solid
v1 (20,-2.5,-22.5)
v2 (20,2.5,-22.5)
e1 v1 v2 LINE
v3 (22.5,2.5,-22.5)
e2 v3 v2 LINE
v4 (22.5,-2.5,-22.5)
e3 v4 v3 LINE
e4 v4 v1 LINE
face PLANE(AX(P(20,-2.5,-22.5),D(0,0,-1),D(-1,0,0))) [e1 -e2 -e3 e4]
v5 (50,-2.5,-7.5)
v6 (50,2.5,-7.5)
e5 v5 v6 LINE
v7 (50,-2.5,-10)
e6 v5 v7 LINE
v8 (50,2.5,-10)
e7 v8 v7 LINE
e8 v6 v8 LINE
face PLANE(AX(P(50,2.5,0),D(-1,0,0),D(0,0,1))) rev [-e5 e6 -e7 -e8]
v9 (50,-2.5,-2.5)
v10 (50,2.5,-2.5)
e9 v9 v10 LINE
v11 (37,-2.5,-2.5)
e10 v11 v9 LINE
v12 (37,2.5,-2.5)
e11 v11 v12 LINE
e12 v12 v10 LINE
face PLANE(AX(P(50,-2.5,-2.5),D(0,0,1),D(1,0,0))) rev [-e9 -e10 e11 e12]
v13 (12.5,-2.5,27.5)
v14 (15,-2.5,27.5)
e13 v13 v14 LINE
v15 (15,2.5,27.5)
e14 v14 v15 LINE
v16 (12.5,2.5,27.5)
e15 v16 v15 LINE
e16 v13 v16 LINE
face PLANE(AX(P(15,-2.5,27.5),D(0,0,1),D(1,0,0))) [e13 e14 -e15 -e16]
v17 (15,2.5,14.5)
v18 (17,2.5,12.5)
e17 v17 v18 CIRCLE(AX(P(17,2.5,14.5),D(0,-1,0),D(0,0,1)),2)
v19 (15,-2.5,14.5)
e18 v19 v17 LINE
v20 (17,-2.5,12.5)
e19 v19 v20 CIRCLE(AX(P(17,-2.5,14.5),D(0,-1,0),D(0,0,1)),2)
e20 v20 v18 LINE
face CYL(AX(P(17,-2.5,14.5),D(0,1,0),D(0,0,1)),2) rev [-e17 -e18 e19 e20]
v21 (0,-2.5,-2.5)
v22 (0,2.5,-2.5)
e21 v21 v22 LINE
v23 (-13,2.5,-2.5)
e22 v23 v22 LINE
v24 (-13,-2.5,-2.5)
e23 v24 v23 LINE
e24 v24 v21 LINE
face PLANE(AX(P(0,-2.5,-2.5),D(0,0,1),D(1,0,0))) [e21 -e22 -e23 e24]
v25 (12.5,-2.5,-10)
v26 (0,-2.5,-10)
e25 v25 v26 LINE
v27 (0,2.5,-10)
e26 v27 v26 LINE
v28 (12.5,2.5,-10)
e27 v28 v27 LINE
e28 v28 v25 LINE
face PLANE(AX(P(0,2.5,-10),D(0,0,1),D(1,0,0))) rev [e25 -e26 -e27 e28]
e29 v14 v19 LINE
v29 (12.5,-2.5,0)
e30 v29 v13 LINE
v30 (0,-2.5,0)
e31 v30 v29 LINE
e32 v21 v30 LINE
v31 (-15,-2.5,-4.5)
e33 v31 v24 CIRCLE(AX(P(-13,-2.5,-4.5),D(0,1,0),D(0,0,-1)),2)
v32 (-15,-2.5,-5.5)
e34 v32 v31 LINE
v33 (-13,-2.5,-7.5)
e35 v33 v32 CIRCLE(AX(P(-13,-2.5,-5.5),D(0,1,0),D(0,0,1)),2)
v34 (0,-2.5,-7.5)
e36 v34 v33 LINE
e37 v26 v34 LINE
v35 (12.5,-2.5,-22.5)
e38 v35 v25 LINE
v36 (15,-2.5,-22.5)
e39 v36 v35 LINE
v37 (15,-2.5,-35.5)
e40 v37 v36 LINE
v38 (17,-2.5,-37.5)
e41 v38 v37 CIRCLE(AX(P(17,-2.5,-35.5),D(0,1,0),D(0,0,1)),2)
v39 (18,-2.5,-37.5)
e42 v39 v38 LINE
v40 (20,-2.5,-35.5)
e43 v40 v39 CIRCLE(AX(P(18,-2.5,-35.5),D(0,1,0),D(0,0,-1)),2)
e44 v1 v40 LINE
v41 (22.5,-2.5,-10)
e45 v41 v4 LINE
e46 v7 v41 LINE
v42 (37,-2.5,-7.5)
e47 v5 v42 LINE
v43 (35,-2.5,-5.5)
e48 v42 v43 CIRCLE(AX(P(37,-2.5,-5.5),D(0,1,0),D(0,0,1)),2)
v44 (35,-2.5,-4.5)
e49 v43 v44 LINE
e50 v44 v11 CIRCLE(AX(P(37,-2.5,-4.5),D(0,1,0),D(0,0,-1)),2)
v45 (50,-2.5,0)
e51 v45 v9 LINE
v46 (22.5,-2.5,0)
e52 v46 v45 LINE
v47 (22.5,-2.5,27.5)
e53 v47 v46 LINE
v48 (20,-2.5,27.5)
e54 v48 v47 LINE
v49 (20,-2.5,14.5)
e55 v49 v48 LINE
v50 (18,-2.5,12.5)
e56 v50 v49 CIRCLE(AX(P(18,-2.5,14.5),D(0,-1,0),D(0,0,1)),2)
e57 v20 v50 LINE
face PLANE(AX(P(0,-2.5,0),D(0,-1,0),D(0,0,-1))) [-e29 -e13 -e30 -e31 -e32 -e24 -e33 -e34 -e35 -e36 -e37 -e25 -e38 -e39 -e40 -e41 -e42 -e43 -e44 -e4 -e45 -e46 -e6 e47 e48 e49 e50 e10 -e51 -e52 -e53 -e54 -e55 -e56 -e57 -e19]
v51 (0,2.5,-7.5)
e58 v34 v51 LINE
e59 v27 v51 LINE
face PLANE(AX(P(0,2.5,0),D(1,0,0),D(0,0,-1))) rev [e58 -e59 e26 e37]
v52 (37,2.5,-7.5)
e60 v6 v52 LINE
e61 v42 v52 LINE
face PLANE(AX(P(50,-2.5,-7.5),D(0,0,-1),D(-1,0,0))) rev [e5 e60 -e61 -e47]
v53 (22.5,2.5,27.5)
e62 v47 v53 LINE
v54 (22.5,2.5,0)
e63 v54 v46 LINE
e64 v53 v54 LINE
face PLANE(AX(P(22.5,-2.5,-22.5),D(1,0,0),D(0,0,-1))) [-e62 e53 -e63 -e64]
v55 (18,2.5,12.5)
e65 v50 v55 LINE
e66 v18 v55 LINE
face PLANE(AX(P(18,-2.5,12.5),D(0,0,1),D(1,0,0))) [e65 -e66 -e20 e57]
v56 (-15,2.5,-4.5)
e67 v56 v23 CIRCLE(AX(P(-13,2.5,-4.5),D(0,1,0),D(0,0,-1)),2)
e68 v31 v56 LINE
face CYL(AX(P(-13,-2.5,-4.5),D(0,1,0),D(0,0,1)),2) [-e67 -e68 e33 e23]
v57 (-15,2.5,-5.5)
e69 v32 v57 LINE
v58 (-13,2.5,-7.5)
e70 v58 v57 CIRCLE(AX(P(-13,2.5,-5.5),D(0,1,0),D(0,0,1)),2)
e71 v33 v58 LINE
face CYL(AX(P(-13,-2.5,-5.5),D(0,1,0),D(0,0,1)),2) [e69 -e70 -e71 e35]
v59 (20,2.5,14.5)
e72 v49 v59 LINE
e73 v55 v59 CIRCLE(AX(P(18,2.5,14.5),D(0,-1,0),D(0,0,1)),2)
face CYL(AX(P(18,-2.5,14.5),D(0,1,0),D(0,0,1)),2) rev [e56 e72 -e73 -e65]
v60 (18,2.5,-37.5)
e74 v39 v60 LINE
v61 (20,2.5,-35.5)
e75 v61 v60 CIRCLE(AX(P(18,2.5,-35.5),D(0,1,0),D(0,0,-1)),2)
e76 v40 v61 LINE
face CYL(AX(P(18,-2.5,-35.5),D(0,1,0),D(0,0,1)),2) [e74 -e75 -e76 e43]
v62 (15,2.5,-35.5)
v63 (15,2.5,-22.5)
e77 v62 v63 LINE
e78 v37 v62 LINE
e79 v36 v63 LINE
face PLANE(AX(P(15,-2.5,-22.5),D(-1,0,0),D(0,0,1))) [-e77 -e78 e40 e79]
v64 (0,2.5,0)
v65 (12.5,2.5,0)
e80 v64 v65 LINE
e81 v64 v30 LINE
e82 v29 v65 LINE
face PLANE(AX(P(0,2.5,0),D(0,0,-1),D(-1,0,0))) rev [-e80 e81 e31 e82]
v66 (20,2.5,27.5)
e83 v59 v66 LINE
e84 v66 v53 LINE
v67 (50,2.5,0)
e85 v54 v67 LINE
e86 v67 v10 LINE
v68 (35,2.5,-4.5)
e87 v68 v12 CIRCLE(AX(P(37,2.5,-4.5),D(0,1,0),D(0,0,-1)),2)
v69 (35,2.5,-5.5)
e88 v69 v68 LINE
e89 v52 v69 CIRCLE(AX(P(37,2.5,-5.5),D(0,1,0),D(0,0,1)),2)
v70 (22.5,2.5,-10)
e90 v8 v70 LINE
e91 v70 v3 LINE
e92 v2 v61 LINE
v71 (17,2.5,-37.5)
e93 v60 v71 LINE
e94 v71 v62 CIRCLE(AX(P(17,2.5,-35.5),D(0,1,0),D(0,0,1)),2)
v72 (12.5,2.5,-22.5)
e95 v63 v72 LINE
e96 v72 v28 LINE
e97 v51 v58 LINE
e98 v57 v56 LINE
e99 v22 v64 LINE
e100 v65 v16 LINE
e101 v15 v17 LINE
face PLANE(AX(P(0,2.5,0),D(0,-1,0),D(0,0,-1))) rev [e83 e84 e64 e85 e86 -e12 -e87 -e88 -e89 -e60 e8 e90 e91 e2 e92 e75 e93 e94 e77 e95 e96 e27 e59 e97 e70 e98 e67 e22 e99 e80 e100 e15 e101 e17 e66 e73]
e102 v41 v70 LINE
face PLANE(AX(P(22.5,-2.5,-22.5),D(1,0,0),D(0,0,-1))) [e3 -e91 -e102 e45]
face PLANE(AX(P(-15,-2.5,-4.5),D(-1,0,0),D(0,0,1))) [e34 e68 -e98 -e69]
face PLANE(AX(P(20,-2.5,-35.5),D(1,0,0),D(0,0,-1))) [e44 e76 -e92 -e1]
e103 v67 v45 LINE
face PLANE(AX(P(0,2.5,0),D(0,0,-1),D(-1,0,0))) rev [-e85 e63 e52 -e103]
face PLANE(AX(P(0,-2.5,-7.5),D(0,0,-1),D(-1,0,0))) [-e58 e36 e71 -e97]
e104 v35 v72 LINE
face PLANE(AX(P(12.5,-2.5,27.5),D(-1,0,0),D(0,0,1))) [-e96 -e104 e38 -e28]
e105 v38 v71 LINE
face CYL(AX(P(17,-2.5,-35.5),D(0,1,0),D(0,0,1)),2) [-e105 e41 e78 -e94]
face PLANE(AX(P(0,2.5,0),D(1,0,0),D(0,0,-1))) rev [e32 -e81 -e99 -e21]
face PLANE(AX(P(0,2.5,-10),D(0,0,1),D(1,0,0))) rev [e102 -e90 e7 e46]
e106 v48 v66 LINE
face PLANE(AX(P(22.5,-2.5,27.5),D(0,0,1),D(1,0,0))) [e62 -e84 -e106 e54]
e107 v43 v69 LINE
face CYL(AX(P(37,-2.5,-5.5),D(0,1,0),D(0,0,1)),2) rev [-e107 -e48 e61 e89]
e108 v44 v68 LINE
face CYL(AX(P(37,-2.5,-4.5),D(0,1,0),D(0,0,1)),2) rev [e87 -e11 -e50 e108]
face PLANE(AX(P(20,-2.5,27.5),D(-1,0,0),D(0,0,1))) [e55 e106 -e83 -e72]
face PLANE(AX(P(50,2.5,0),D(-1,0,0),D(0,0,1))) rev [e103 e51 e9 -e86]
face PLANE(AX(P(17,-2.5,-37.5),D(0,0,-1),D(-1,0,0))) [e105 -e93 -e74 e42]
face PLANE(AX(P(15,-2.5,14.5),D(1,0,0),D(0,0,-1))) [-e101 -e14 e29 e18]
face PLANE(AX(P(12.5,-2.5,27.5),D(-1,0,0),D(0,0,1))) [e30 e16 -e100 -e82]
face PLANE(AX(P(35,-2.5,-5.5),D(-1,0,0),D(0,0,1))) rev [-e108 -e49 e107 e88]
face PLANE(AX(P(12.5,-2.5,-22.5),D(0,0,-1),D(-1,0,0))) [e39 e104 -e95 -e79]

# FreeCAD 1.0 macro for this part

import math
import FreeCAD as App
import Part
import Sketcher
from FreeCAD import Vector
Q = App.Units.Quantity


def add_polygon(sketch, points):
    """Adds a closed chain of lines whose ends are joined by coincident constraints."""
    first, n = sketch.GeometryCount, len(points)
    for a, b in zip(points, points[1:] + points[:1]):
        sketch.addGeometry(Part.LineSegment(App.Vector(*a, 0), App.Vector(*b, 0)), False)
    for i in range(n):
        sketch.addConstraint(Sketcher.Constraint("Coincident", first + i, 2, first + (i + 1) % n, 1))

doc = App.newDocument("Part")
params = doc.addObject("Spreadsheet::Sheet", "Params")
for row, (alias, value) in enumerate([
    ("sketch1_width", "50 mm"),
    ("sketch1_height", "10 mm"),
    ("pad1_length", "5 mm"),
    ("sketch2_radius", "2 mm"),
    ("sketch2_width", "13 mm"),
    ("sketch2_height", "1 mm"),
    ("sketch3_radius", "2 mm"),
    ("sketch3_width", "13 mm"),
    ("sketch3_height", "5 mm"),
    ("pad2_length", "5 mm"),
    ("sketch4_radius", "2 mm"),
    ("sketch4_width", "1 mm"),
    ("sketch4_height", "13 mm"),
    ("sketch4_height2", "50 mm"),
    ("sketch4_width2", "2.5 mm"),
    ("pad3_length", "5 mm"),
], start=1):
    params.set(f"A{row}", alias)
    params.set(f"B{row}", "=" + value)
    params.setAlias(f"B{row}", alias)

body = doc.addObject("PartDesign::Body", "Body")

# Sketch on XZ plane
sketch1 = body.newObject("Sketcher::SketchObject", "Sketch")
sketch1.AttachmentSupport = (doc.getObject("XZ_Plane"), [""])
sketch1.MapMode = "FlatFace"
add_polygon(sketch1, [(0, -10), (0, 0), (50, 0), (50, -10)])  # lines 0-3
sketch1.addConstraint([
    Sketcher.Constraint("Vertical", 0),
    Sketcher.Constraint("Horizontal", 1),
    Sketcher.Constraint("Vertical", 2),
    Sketcher.Constraint("Horizontal", 3),
    Sketcher.Constraint("Coincident", 0, 2, -1, 1),
    Sketcher.Constraint("DistanceX", 1, 1, 1, 2, Q("50 mm")),
    Sketcher.Constraint("DistanceY", 0, 1, 0, 2, Q("10 mm")),
])
sketch1.setExpression("Constraints[9]", "Params.sketch1_width")
sketch1.setExpression("Constraints[10]", "Params.sketch1_height")
pad1 = body.newObject("PartDesign::Pad", "Pad")
pad1.Profile = sketch1
pad1.setExpression("Length", "Params.pad1_length")
pad1.Midplane = True

# Sketch on XZ plane
sketch2 = body.newObject("Sketcher::SketchObject", "Sketch001")
sketch2.AttachmentSupport = (doc.getObject("XZ_Plane"), [""])
sketch2.MapMode = "FlatFace"
sketch2.AttachmentOffset = App.Placement(Vector(0, 0, -2.5), App.Rotation())
sketch2.addGeometry([
    Part.LineSegment(Vector(50, -7.5, 0), Vector(37, -7.5, 0)),  # 0
    Part.ArcOfCircle(Part.Circle(Vector(37, -5.5, 0), Vector(0, 0, 1), 2), math.radians(-180), math.radians(-90)),  # 1
    Part.LineSegment(Vector(35, -5.5, 0), Vector(35, -4.5, 0)),  # 2
    Part.ArcOfCircle(Part.Circle(Vector(37, -4.5, 0), Vector(0, 0, 1), 2), math.radians(90), math.radians(180)),  # 3
    Part.LineSegment(Vector(37, -2.5, 0), Vector(50, -2.5, 0)),  # 4
    Part.LineSegment(Vector(50, -2.5, 0), Vector(50, -7.5, 0)),  # 5
], False)
sketch2.addConstraint([
    Sketcher.Constraint("Tangent", 0, 2, 1, 2),
    Sketcher.Constraint("Tangent", 1, 1, 2, 1),
    Sketcher.Constraint("Tangent", 2, 2, 3, 2),
    Sketcher.Constraint("Tangent", 3, 1, 4, 1),
    Sketcher.Constraint("Coincident", 4, 2, 5, 1),
    Sketcher.Constraint("Coincident", 5, 2, 0, 1),
    Sketcher.Constraint("Horizontal", 0),
    Sketcher.Constraint("Vertical", 2),
    Sketcher.Constraint("Horizontal", 4),
    Sketcher.Constraint("Vertical", 5),
    Sketcher.Constraint("Equal", 1, 3),
    Sketcher.Constraint("Radius", 1, Q("2 mm")),
    Sketcher.Constraint("DistanceX", 0, 2, 0, 1, Q("13 mm")),
    Sketcher.Constraint("DistanceY", 2, 1, 2, 2, Q("1 mm")),
    Sketcher.Constraint("DistanceX", -1, 1, 1, 3, Q("37 mm")),
    Sketcher.Constraint("DistanceY", 1, 3, -1, 1, Q("5.5 mm")),
])
sketch2.setExpression("Constraints[11]", "Params.sketch2_radius")
sketch2.setExpression("Constraints[12]", "Params.sketch2_width")
sketch2.setExpression("Constraints[13]", "Params.sketch2_height")
pocket1 = body.newObject("PartDesign::Pocket", "Pocket")
pocket1.Profile = sketch2
pocket1.Type = "ThroughAll"
pocket1.Reversed = True

# Sketch on XZ plane
sketch3 = body.newObject("Sketcher::SketchObject", "Sketch002")
sketch3.AttachmentSupport = (doc.getObject("XZ_Plane"), [""])
sketch3.MapMode = "FlatFace"
sketch3.AttachmentOffset = App.Placement(Vector(0, 0, -2.5), App.Rotation())
sketch3.addGeometry([
    Part.LineSegment(Vector(-13, -2.5, 0), Vector(0, -2.5, 0)),  # 0
    Part.LineSegment(Vector(0, -2.5, 0), Vector(0, -7.5, 0)),  # 1
    Part.LineSegment(Vector(0, -7.5, 0), Vector(-13, -7.5, 0)),  # 2
    Part.ArcOfCircle(Part.Circle(Vector(-13, -5.5, 0), Vector(0, 0, 1), 2), math.radians(-180), math.radians(-90)),  # 3
    Part.LineSegment(Vector(-15, -5.5, 0), Vector(-15, -4.5, 0)),  # 4
    Part.ArcOfCircle(Part.Circle(Vector(-13, -4.5, 0), Vector(0, 0, 1), 2), math.radians(90), math.radians(180)),  # 5
], False)
sketch3.addConstraint([
    Sketcher.Constraint("Coincident", 0, 2, 1, 1),
    Sketcher.Constraint("Coincident", 1, 2, 2, 1),
    Sketcher.Constraint("Tangent", 2, 2, 3, 2),
    Sketcher.Constraint("Tangent", 3, 1, 4, 1),
    Sketcher.Constraint("Tangent", 4, 2, 5, 2),
    Sketcher.Constraint("Tangent", 5, 1, 0, 1),
    Sketcher.Constraint("Horizontal", 0),
    Sketcher.Constraint("Vertical", 1),
    Sketcher.Constraint("Horizontal", 2),
    Sketcher.Constraint("Vertical", 4),
    Sketcher.Constraint("Equal", 3, 5),
    Sketcher.Constraint("PointOnObject", 0, 2, -2),
    Sketcher.Constraint("Radius", 3, Q("2 mm")),
    Sketcher.Constraint("DistanceX", 0, 1, 0, 2, Q("13 mm")),
    Sketcher.Constraint("DistanceY", 1, 2, 1, 1, Q("5 mm")),
    Sketcher.Constraint("DistanceY", 3, 3, -1, 1, Q("5.5 mm")),
])
sketch3.setExpression("Constraints[12]", "Params.sketch3_radius")
sketch3.setExpression("Constraints[13]", "Params.sketch3_width")
sketch3.setExpression("Constraints[14]", "Params.sketch3_height")
pad2 = body.newObject("PartDesign::Pad", "Pad001")
pad2.Profile = sketch3
pad2.setExpression("Length", "Params.pad2_length")

# Sketch on XZ plane
sketch4 = body.newObject("Sketcher::SketchObject", "Sketch003")
sketch4.AttachmentSupport = (doc.getObject("XZ_Plane"), [""])
sketch4.MapMode = "FlatFace"
sketch4.AttachmentOffset = App.Placement(Vector(0, 0, -2.5), App.Rotation())
sketch4.addGeometry([
    Part.LineSegment(Vector(18, -37.5, 0), Vector(17, -37.5, 0)),  # 0
    Part.ArcOfCircle(Part.Circle(Vector(17, -35.5, 0), Vector(0, 0, 1), 2), math.radians(-180), math.radians(-90)),  # 1
    Part.LineSegment(Vector(15, -35.5, 0), Vector(15, -22.5, 0)),  # 2
    Part.LineSegment(Vector(15, -22.5, 0), Vector(12.5, -22.5, 0)),  # 3
    Part.LineSegment(Vector(12.5, -22.5, 0), Vector(12.5, 27.5, 0)),  # 4
    Part.LineSegment(Vector(12.5, 27.5, 0), Vector(15, 27.5, 0)),  # 5
    Part.LineSegment(Vector(15, 27.5, 0), Vector(15, 14.5, 0)),  # 6
    Part.ArcOfCircle(Part.Circle(Vector(17, 14.5, 0), Vector(0, 0, 1), 2), math.radians(-180), math.radians(-90)),  # 7
    Part.LineSegment(Vector(17, 12.5, 0), Vector(18, 12.5, 0)),  # 8
    Part.ArcOfCircle(Part.Circle(Vector(18, 14.5, 0), Vector(0, 0, 1), 2), math.radians(-90), math.radians(0)),  # 9
    Part.LineSegment(Vector(20, 14.5, 0), Vector(20, 27.5, 0)),  # 10
    Part.LineSegment(Vector(20, 27.5, 0), Vector(22.5, 27.5, 0)),  # 11
    Part.LineSegment(Vector(22.5, 27.5, 0), Vector(22.5, -22.5, 0)),  # 12
    Part.LineSegment(Vector(22.5, -22.5, 0), Vector(20, -22.5, 0)),  # 13
    Part.LineSegment(Vector(20, -22.5, 0), Vector(20, -35.5, 0)),  # 14
    Part.ArcOfCircle(Part.Circle(Vector(18, -35.5, 0), Vector(0, 0, 1), 2), math.radians(-90), math.radians(0)),  # 15
], False)
sketch4.addConstraint([
    Sketcher.Constraint("Tangent", 0, 2, 1, 2),
    Sketcher.Constraint("Tangent", 1, 1, 2, 1),
    Sketcher.Constraint("Coincident", 2, 2, 3, 1),
    Sketcher.Constraint("Coincident", 3, 2, 4, 1),
    Sketcher.Constraint("Coincident", 4, 2, 5, 1),
    Sketcher.Constraint("Coincident", 5, 2, 6, 1),
    Sketcher.Constraint("Tangent", 6, 2, 7, 1),
    Sketcher.Constraint("Tangent", 7, 2, 8, 1),
    Sketcher.Constraint("Tangent", 8, 2, 9, 1),
    Sketcher.Constraint("Tangent", 9, 2, 10, 1),
    Sketcher.Constraint("Coincident", 10, 2, 11, 1),
    Sketcher.Constraint("Coincident", 11, 2, 12, 1),
    Sketcher.Constraint("Coincident", 12, 2, 13, 1),
    Sketcher.Constraint("Coincident", 13, 2, 14, 1),
    Sketcher.Constraint("Tangent", 14, 2, 15, 2),
    Sketcher.Constraint("Tangent", 15, 1, 0, 1),
    Sketcher.Constraint("Horizontal", 0),
    Sketcher.Constraint("Vertical", 2),
    Sketcher.Constraint("Horizontal", 3),
    Sketcher.Constraint("Vertical", 4),
    Sketcher.Constraint("Horizontal", 5),
    Sketcher.Constraint("Vertical", 6),
    Sketcher.Constraint("Horizontal", 8),
    Sketcher.Constraint("Vertical", 10),
    Sketcher.Constraint("Horizontal", 11),
    Sketcher.Constraint("Vertical", 12),
    Sketcher.Constraint("Horizontal", 13),
    Sketcher.Constraint("Vertical", 14),
    Sketcher.Constraint("Equal", 1, 7),
    Sketcher.Constraint("Equal", 7, 9),
    Sketcher.Constraint("Equal", 9, 15),
    Sketcher.Constraint("Horizontal", 5, 2, 10, 2),
    Sketcher.Constraint("Horizontal", 3, 2, 12, 2),
    Sketcher.Constraint("Vertical", 1, 3, 7, 3),
    Sketcher.Constraint("Vertical", 9, 3, 15, 3),
    Sketcher.Constraint("Equal", 5, 11),
    Sketcher.Constraint("Equal", 2, 6),
    Sketcher.Constraint("Radius", 1, Q("2 mm")),
    Sketcher.Constraint("DistanceX", 0, 2, 0, 1, Q("1 mm")),
    Sketcher.Constraint("DistanceY", 2, 1, 2, 2, Q("13 mm")),
    Sketcher.Constraint("DistanceY", 4, 1, 4, 2, Q("50 mm")),
    Sketcher.Constraint("DistanceX", 3, 2, 3, 1, Q("2.5 mm")),
    Sketcher.Constraint("DistanceX", -1, 1, 1, 3, Q("17 mm")),
    Sketcher.Constraint("DistanceY", 1, 3, -1, 1, Q("35.5 mm")),
])
sketch4.setExpression("Constraints[37]", "Params.sketch4_radius")
sketch4.setExpression("Constraints[38]", "Params.sketch4_width")
sketch4.setExpression("Constraints[39]", "Params.sketch4_height")
sketch4.setExpression("Constraints[40]", "Params.sketch4_height2")
sketch4.setExpression("Constraints[41]", "Params.sketch4_width2")
pad3 = body.newObject("PartDesign::Pad", "Pad002")
pad3.Profile = sketch4
pad3.setExpression("Length", "Params.pad3_length")

doc.recompute()
